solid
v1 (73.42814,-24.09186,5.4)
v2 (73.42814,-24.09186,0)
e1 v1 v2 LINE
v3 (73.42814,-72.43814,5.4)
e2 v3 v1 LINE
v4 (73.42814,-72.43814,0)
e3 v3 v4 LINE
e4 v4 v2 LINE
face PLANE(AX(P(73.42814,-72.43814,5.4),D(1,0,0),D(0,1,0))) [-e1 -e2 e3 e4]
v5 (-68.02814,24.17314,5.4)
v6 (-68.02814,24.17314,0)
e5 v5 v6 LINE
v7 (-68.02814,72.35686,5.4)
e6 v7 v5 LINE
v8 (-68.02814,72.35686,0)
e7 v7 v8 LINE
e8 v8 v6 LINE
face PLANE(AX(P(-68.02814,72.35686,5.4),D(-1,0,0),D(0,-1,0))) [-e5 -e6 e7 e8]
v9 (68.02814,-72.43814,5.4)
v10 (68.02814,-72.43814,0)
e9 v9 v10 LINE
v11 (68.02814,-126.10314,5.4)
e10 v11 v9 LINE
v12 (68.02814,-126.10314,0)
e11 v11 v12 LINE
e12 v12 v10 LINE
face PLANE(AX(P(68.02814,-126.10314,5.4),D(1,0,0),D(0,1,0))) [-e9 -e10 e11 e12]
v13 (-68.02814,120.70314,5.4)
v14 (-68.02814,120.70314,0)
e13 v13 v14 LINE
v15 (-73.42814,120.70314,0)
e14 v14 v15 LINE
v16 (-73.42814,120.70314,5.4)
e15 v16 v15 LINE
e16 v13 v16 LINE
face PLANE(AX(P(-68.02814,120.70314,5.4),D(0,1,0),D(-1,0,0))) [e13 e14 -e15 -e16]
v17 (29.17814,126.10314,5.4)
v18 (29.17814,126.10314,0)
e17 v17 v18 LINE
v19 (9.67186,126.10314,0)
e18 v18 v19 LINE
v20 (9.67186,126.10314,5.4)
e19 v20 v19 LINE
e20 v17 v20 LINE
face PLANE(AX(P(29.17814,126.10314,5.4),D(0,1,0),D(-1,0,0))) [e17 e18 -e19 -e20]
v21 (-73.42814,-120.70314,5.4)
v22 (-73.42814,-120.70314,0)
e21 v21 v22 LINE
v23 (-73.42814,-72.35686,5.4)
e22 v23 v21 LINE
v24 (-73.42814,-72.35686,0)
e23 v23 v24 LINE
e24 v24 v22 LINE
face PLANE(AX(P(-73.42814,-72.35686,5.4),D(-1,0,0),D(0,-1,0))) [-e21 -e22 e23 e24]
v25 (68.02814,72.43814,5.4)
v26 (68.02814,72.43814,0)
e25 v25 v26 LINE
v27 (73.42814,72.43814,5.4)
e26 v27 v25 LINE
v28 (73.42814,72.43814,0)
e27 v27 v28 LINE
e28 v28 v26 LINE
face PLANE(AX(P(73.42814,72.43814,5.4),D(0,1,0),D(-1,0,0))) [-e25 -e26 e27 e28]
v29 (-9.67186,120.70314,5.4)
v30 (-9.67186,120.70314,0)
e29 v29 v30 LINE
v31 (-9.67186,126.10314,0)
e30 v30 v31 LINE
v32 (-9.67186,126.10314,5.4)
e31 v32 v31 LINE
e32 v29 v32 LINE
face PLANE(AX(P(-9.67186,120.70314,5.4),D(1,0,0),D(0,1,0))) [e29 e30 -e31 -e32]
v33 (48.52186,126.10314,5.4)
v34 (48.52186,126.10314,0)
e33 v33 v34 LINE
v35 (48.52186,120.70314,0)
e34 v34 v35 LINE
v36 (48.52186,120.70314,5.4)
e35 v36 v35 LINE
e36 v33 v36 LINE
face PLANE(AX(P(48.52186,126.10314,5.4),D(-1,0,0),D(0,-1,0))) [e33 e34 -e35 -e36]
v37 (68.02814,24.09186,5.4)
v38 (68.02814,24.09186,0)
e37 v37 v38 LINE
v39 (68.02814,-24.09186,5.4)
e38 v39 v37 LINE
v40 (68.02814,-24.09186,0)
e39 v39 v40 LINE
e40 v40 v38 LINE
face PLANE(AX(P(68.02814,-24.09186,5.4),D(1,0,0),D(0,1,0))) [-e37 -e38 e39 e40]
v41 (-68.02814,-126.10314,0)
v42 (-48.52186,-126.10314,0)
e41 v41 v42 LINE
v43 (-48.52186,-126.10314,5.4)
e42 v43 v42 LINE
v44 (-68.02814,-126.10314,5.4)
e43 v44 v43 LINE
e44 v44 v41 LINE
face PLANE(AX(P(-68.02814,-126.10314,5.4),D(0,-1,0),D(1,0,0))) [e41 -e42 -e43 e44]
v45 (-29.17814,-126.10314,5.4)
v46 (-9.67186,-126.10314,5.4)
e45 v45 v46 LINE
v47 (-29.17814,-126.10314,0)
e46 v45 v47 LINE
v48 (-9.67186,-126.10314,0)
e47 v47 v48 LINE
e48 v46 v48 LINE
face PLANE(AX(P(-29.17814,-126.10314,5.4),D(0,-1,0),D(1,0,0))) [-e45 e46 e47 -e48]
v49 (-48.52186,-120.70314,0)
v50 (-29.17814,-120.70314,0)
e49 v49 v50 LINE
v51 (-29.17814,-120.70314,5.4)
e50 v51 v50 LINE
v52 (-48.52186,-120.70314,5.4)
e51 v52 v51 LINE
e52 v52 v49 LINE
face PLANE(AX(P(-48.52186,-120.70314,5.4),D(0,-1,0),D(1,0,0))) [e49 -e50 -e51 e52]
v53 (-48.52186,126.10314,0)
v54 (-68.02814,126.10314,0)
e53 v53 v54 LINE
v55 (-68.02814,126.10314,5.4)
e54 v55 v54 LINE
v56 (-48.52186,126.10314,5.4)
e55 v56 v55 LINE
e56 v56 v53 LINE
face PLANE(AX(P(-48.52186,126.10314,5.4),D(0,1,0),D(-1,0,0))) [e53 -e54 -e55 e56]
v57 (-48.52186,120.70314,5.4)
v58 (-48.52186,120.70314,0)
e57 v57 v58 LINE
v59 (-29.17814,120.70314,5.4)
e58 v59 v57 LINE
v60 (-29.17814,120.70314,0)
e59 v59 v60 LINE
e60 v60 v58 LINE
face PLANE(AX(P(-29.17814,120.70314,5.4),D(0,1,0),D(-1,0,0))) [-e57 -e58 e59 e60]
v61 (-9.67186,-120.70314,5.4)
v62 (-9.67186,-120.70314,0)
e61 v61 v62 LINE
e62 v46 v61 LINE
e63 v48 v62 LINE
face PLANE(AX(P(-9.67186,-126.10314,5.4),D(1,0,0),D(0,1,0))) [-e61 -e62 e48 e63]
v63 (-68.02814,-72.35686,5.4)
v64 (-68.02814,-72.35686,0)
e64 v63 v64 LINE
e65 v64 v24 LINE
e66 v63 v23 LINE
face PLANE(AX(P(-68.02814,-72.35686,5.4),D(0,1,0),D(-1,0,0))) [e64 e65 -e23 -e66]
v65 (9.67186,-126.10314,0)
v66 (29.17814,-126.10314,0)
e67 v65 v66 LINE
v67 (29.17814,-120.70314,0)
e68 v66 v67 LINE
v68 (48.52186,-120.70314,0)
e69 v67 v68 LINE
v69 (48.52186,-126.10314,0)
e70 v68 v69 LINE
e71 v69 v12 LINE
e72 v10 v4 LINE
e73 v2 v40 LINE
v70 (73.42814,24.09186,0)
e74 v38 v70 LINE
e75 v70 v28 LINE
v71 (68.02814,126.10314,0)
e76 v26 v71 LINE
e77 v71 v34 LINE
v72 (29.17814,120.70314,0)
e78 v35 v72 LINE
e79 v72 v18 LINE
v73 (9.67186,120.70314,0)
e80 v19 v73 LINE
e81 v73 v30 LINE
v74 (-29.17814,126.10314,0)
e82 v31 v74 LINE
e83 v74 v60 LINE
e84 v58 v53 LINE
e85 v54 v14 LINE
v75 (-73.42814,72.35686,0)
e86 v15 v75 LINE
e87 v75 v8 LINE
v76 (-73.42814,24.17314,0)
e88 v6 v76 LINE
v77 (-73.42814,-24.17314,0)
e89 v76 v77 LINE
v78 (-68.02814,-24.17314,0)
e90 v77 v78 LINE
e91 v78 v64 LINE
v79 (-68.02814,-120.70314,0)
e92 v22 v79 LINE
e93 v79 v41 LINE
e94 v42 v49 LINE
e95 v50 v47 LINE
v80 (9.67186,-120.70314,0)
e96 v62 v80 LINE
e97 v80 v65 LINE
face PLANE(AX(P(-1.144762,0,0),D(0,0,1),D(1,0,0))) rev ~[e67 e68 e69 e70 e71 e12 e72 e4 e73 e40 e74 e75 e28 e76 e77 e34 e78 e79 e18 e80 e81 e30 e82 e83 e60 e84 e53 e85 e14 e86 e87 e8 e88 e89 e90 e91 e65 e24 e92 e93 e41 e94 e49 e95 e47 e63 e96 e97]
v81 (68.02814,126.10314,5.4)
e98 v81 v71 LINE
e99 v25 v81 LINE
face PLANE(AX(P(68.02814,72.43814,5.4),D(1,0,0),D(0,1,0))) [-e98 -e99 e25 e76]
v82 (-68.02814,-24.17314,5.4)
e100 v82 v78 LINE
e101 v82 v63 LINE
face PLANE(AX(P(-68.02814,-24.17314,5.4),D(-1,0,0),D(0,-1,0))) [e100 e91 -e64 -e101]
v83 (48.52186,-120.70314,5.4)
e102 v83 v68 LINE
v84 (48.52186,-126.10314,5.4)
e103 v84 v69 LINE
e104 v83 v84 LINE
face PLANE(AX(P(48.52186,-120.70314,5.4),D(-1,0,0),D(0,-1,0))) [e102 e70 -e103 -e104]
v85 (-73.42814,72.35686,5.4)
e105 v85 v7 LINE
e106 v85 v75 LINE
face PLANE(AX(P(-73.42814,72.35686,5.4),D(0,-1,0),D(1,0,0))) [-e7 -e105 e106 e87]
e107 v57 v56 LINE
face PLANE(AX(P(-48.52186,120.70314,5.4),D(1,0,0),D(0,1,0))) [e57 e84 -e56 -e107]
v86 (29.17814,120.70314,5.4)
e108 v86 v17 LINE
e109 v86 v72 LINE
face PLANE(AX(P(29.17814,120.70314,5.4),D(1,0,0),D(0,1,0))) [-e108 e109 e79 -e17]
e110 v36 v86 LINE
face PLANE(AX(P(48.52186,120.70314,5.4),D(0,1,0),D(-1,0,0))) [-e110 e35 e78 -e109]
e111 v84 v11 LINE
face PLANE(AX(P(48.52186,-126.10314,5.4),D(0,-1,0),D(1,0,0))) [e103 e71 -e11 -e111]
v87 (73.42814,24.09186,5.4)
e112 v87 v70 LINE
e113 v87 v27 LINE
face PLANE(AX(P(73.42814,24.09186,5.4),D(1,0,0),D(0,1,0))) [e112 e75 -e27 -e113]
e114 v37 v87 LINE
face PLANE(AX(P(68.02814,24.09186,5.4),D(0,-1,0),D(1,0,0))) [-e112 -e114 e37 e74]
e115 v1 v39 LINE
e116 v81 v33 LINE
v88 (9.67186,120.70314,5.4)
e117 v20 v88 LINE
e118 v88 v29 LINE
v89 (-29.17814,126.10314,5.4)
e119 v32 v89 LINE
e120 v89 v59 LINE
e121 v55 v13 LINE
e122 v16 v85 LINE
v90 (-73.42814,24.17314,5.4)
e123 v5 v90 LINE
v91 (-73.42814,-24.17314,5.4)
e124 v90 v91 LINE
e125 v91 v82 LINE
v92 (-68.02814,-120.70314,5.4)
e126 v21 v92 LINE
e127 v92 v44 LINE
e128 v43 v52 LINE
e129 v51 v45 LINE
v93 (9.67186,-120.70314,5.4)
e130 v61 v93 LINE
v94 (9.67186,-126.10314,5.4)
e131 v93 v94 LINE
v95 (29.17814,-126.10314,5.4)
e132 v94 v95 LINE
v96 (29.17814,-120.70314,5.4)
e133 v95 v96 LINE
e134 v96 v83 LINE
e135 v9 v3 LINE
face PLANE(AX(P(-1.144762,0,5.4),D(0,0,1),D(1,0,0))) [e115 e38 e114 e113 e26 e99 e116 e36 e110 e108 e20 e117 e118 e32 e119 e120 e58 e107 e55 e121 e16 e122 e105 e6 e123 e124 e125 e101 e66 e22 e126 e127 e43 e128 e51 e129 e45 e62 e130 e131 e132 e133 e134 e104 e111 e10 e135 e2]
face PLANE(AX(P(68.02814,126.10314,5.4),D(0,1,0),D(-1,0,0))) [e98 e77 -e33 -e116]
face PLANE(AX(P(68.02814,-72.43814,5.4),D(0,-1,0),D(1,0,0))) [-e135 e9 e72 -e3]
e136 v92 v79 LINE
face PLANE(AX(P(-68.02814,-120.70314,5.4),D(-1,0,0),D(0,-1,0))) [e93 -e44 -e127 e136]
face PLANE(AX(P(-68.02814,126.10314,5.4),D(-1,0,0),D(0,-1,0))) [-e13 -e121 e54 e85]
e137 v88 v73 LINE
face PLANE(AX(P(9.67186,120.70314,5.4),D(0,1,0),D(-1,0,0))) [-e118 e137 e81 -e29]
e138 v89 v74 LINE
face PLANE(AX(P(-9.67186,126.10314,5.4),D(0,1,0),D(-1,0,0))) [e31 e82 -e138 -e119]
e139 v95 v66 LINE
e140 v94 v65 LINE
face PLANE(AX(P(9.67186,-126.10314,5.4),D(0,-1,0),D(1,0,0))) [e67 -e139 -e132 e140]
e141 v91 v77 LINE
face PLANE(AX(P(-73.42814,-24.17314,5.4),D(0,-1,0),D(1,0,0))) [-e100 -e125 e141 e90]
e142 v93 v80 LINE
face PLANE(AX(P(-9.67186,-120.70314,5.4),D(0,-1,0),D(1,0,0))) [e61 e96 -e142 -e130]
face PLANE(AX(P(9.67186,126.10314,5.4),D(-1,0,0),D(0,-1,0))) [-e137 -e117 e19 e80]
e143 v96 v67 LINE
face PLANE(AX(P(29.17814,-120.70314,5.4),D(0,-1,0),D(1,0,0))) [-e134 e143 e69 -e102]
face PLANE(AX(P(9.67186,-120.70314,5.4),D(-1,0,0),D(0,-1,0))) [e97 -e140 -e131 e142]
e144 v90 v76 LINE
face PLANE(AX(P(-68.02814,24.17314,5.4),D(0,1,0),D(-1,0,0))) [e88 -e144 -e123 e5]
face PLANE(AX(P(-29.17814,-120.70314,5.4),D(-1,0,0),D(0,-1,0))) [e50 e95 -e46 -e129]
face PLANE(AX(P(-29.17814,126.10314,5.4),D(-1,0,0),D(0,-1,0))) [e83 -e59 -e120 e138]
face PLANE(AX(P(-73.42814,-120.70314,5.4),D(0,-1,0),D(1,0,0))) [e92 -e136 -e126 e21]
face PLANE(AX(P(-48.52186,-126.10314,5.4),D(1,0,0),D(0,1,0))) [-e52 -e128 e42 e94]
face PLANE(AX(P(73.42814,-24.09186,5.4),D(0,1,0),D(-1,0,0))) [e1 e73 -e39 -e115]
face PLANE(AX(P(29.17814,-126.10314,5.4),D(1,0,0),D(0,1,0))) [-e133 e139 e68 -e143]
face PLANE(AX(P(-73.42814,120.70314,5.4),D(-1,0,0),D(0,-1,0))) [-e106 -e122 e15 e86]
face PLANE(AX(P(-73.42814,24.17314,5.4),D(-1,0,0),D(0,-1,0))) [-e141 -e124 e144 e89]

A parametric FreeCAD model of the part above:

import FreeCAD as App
import Part
import Sketcher

V = App.Vector
Q = App.Units.Quantity


def add_polygon(sketch, points):
    """Adds a closed chain of lines whose ends are joined by coincident constraints."""
    first, n = sketch.GeometryCount, len(points)
    for a, b in zip(points, points[1:] + points[:1]):
        sketch.addGeometry(Part.LineSegment(App.Vector(*a, 0), App.Vector(*b, 0)), False)
    for i in range(n):
        sketch.addConstraint(Sketcher.Constraint("Coincident", first + i, 2, first + (i + 1) % n, 1))

doc = App.newDocument("Part")
body = doc.addObject("PartDesign::Body", "Body")

sketch1 = body.newObject("Sketcher::SketchObject", "Sketch")
sketch1.AttachmentSupport = (doc.getObject("XY_Plane"), [""])
sketch1.MapMode = "FlatFace"
add_polygon(sketch1, [(-67.9875, -24.1325), (-67.9875, -72.3975), (-73.3875, -72.3975), (-73.3875, -120.6625), (-67.9875, -120.6625), (-67.9875, -126.0625), (-48.5625, -126.0625), (-48.5625, -120.6625), (-29.1375, -120.6625), (-29.1375, -126.0625), (-9.7125, -126.0625), (-9.7125, -120.6625), (9.7125, -120.6625), (9.7125, -126.0625), (29.1375, -126.0625), (29.1375, -120.6625), (48.5625, -120.6625), (48.5625, -126.0625), (67.9875, -126.0625), (67.9875, -72.3975), (73.3875, -72.3975), (73.3875, -24.1325), (67.9875, -24.1325), (67.9875, 24.1325), (73.3875, 24.1325), (73.3875, 72.3975), (67.9875, 72.3975), (67.9875, 126.0625), (48.5625, 126.0625), (48.5625, 120.6625), (29.1375, 120.6625), (29.1375, 126.0625), (9.7125, 126.0625), (9.7125, 120.6625), (-9.7125, 120.6625), (-9.7125, 126.0625), (-29.1375, 126.0625), (-29.1375, 120.6625), (-48.5625, 120.6625), (-48.5625, 126.0625), (-67.9875, 126.0625), (-67.9875, 120.6625), (-73.3875, 120.6625), (-73.3875, 72.3975), (-67.9875, 72.3975), (-67.9875, 24.1325), (-73.3875, 24.1325), (-73.3875, -24.1325)])
sketch1.addConstraint([
    Sketcher.Constraint("Vertical", 0),
    Sketcher.Constraint("Horizontal", 1),
    Sketcher.Constraint("Vertical", 2),
    Sketcher.Constraint("Horizontal", 3),
    Sketcher.Constraint("Vertical", 4),
    Sketcher.Constraint("Horizontal", 5),
    Sketcher.Constraint("Vertical", 6),
    Sketcher.Constraint("Horizontal", 7),
    Sketcher.Constraint("Vertical", 8),
    Sketcher.Constraint("Horizontal", 9),
    Sketcher.Constraint("Vertical", 10),
    Sketcher.Constraint("Horizontal", 11),
    Sketcher.Constraint("Vertical", 12),
    Sketcher.Constraint("Horizontal", 13),
    Sketcher.Constraint("Vertical", 14),
    Sketcher.Constraint("Horizontal", 15),
    Sketcher.Constraint("Vertical", 16),
    Sketcher.Constraint("Horizontal", 17),
    Sketcher.Constraint("Vertical", 18),
    Sketcher.Constraint("Horizontal", 19),
    Sketcher.Constraint("Vertical", 20),
    Sketcher.Constraint("Horizontal", 21),
    Sketcher.Constraint("Vertical", 22),
    Sketcher.Constraint("Horizontal", 23),
    Sketcher.Constraint("Vertical", 24),
    Sketcher.Constraint("Horizontal", 25),
    Sketcher.Constraint("Vertical", 26),
    Sketcher.Constraint("Horizontal", 27),
    Sketcher.Constraint("Vertical", 28),
    Sketcher.Constraint("Horizontal", 29),
    Sketcher.Constraint("Vertical", 30),
    Sketcher.Constraint("Horizontal", 31),
    Sketcher.Constraint("Vertical", 32),
    Sketcher.Constraint("Horizontal", 33),
    Sketcher.Constraint("Vertical", 34),
    Sketcher.Constraint("Horizontal", 35),
    Sketcher.Constraint("Vertical", 36),
    Sketcher.Constraint("Horizontal", 37),
    Sketcher.Constraint("Vertical", 38),
    Sketcher.Constraint("Horizontal", 39),
    Sketcher.Constraint("Vertical", 40),
    Sketcher.Constraint("Horizontal", 41),
    Sketcher.Constraint("Vertical", 42),
    Sketcher.Constraint("Horizontal", 43),
    Sketcher.Constraint("Vertical", 44),
    Sketcher.Constraint("Horizontal", 45),
    Sketcher.Constraint("Vertical", 46),
    Sketcher.Constraint("Horizontal", 47),
    Sketcher.Constraint("Symmetric", 1, 2, 24, 2, -1, 1),
    Sketcher.Constraint("Symmetric", 4, 2, 26, 2, -1, 1),
    Sketcher.Constraint("Symmetric", 6, 2, 28, 2, -1, 1),
    Sketcher.Constraint("Symmetric", 8, 2, 30, 2, -1, 1),
    Sketcher.Constraint("Symmetric", 10, 2, 32, 2, -1, 1),
    Sketcher.Constraint("Symmetric", 12, 2, 34, 2, -1, 1),
    Sketcher.Constraint("Symmetric", 14, 2, 36, 2, -1, 1),
    Sketcher.Constraint("Symmetric", 16, 2, 38, 2, -1, 1),
    Sketcher.Constraint("Symmetric", 19, 2, 42, 2, -1, 1),
    Sketcher.Constraint("Symmetric", 21, 2, 44, 2, -1, 1),
    Sketcher.Constraint("Symmetric", 23, 2, 46, 2, -1, 1),
    Sketcher.Constraint("Symmetric", 9, 2, 12, 2, -2),
    Sketcher.Constraint("Symmetric", 7, 2, 14, 2, -2),
    Sketcher.Constraint("Symmetric", 5, 2, 16, 2, -2),
    Sketcher.Constraint("Symmetric", 0, 2, 18, 2, -2),
    Sketcher.Constraint("Symmetric", 20, 2, 46, 2, -2),
    Sketcher.Constraint("Symmetric", 3, 2, 40, 2, -1),
    Sketcher.Constraint("Horizontal", 3, 2, 6, 2),
    Sketcher.Constraint("Horizontal", 5, 2, 8, 2),
    Sketcher.Constraint("Horizontal", 7, 2, 10, 2),
    Sketcher.Constraint("Vertical", 0, 2, 3, 2),
    Sketcher.Constraint("Vertical", 18, 2, 21, 2),
    Sketcher.Constraint("Equal", 5, 7),
    Sketcher.Constraint("Equal", 7, 9),
    Sketcher.Constraint("Equal", 9, 11),
    Sketcher.Constraint("Equal", 0, 2),
    Sketcher.Constraint("Equal", 47, 4),
    Sketcher.Constraint("Equal", 20, 22),
    Sketcher.Constraint("DistanceX", 1, 2, 1, 1, Q("5.4 mm")),
    Sketcher.Constraint("DistanceX", 5, 1, 5, 2, Q("19.425 mm")),
    Sketcher.Constraint("DistanceY", 0, 2, 0, 1, Q("48.265 mm")),
])
pad1 = body.newObject("PartDesign::Pad", "Pad")
pad1.Profile = sketch1
pad1.Length = 5.4

sketch2 = body.newObject("Sketcher::SketchObject", "Sketch001")
sketch2.AttachmentSupport = (doc.getObject("XY_Plane"), [""])
sketch2.MapMode = "FlatFace"
sketch2.AttachmentOffset = App.Placement(V(0, 0, 5.4), App.Rotation())
add_polygon(sketch2, [(-48.52186, -120.70314), (-29.17814, -120.70314), (-29.17814, -126.10314), (-9.67186, -126.10314), (-9.67186, -120.70314), (9.67186, -120.70314), (9.67186, -126.10314), (29.17814, -126.10314), (29.17814, -120.70314), (48.52186, -120.70314), (48.52186, -126.10314), (68.02814, -126.10314), (68.02814, -72.43814), (73.42814, -72.43814), (73.42814, -24.09186), (68.02814, -24.09186), (68.02814, 24.09186), (73.42814, 24.09186), (73.42814, 72.43814), (68.02814, 72.43814), (68.02814, 126.10314), (48.52186, 126.10314), (48.52186, 120.70314), (29.17814, 120.70314), (29.17814, 126.10314), (9.67186, 126.10314), (9.67186, 120.70314), (-9.67186, 120.70314), (-9.67186, 126.10314), (-29.17814, 126.10314), (-29.17814, 120.70314), (-48.52186, 120.70314), (-48.52186, 126.10314), (-68.02814, 126.10314), (-68.02814, 120.70314), (-73.42814, 120.70314), (-73.42814, 72.35686), (-68.02814, 72.35686), (-68.02814, 24.17314), (-73.42814, 24.17314), (-73.42814, -24.17314), (-68.02814, -24.17314), (-68.02814, -72.35686), (-73.42814, -72.35686), (-73.42814, -120.70314), (-68.02814, -120.70314), (-68.02814, -126.10314), (-48.52186, -126.10314)])
sketch2.addConstraint([
    Sketcher.Constraint("Horizontal", 0),
    Sketcher.Constraint("Vertical", 1),
    Sketcher.Constraint("Horizontal", 2),
    Sketcher.Constraint("Vertical", 3),
    Sketcher.Constraint("Horizontal", 4),
    Sketcher.Constraint("Vertical", 5),
    Sketcher.Constraint("Horizontal", 6),
    Sketcher.Constraint("Vertical", 7),
    Sketcher.Constraint("Horizontal", 8),
    Sketcher.Constraint("Vertical", 9),
    Sketcher.Constraint("Horizontal", 10),
    Sketcher.Constraint("Vertical", 11),
    Sketcher.Constraint("Horizontal", 12),
    Sketcher.Constraint("Vertical", 13),
    Sketcher.Constraint("Horizontal", 14),
    Sketcher.Constraint("Vertical", 15),
    Sketcher.Constraint("Horizontal", 16),
    Sketcher.Constraint("Vertical", 17),
    Sketcher.Constraint("Horizontal", 18),
    Sketcher.Constraint("Vertical", 19),
    Sketcher.Constraint("Horizontal", 20),
    Sketcher.Constraint("Vertical", 21),
    Sketcher.Constraint("Horizontal", 22),
    Sketcher.Constraint("Vertical", 23),
    Sketcher.Constraint("Horizontal", 24),
    Sketcher.Constraint("Vertical", 25),
    Sketcher.Constraint("Horizontal", 26),
    Sketcher.Constraint("Vertical", 27),
    Sketcher.Constraint("Horizontal", 28),
    Sketcher.Constraint("Vertical", 29),
    Sketcher.Constraint("Horizontal", 30),
    Sketcher.Constraint("Vertical", 31),
    Sketcher.Constraint("Horizontal", 32),
    Sketcher.Constraint("Vertical", 33),
    Sketcher.Constraint("Horizontal", 34),
    Sketcher.Constraint("Vertical", 35),
    Sketcher.Constraint("Horizontal", 36),
    Sketcher.Constraint("Vertical", 37),
    Sketcher.Constraint("Horizontal", 38),
    Sketcher.Constraint("Vertical", 39),
    Sketcher.Constraint("Horizontal", 40),
    Sketcher.Constraint("Vertical", 41),
    Sketcher.Constraint("Horizontal", 42),
    Sketcher.Constraint("Vertical", 43),
    Sketcher.Constraint("Horizontal", 44),
    Sketcher.Constraint("Vertical", 45),
    Sketcher.Constraint("Horizontal", 46),
    Sketcher.Constraint("Vertical", 47),
    Sketcher.Constraint("Symmetric", 0, 2, 22, 2, -1, 1),
    Sketcher.Constraint("Symmetric", 2, 2, 24, 2, -1, 1),
    Sketcher.Constraint("Symmetric", 4, 2, 26, 2, -1, 1),
    Sketcher.Constraint("Symmetric", 6, 2, 28, 2, -1, 1),
    Sketcher.Constraint("Symmetric", 8, 2, 30, 2, -1, 1),
    Sketcher.Constraint("Symmetric", 10, 2, 32, 2, -1, 1),
    Sketcher.Constraint("Symmetric", 19, 2, 45, 2, -1, 1),
    Sketcher.Constraint("Symmetric", 2, 2, 5, 2, -2),
    Sketcher.Constraint("Symmetric", 0, 2, 7, 2, -2),
    Sketcher.Constraint("Symmetric", 20, 2, 31, 2, -2),
    Sketcher.Constraint("Symmetric", 13, 2, 16, 2, -1),
    Sketcher.Constraint("Symmetric", 11, 2, 18, 2, -1),
    Sketcher.Constraint("Symmetric", 37, 2, 40, 2, -1),
    Sketcher.Constraint("Symmetric", 35, 2, 42, 2, -1),
    Sketcher.Constraint("Horizontal", 0, 2, 3, 2),
    Sketcher.Constraint("Horizontal", 6, 2, 9, 2),
    Sketcher.Constraint("Horizontal", 30, 2, 33, 2),
    Sketcher.Constraint("Horizontal", 8, 2, 43, 2),
    Sketcher.Constraint("Vertical", 11, 2, 14, 2),
    Sketcher.Constraint("Vertical", 33, 2, 36, 2),
    Sketcher.Constraint("Vertical", 35, 2, 38, 2),
    Sketcher.Constraint("Vertical", 31, 2, 46, 2),
    Sketcher.Constraint("Equal", 0, 4),
    Sketcher.Constraint("Equal", 6, 10),
    Sketcher.Constraint("Equal", 18, 34),
    Sketcher.Constraint("Equal", 44, 1),
    Sketcher.Constraint("Equal", 17, 35),
    Sketcher.Constraint("Equal", 15, 37),
    Sketcher.Constraint("Equal", 35, 39),
    Sketcher.Constraint("DistanceX", 12, 1, 12, 2, Q("5.4 mm")),
    Sketcher.Constraint("DistanceY", 11, 1, 11, 2, Q("53.665 mm")),
    Sketcher.Constraint("DistanceX", 0, 2, 4, 2, Q("38.85 mm")),
    Sketcher.Constraint("DistanceX", 0, 1, 0, 2, Q("19.34372 mm")),
    Sketcher.Constraint("DistanceY", 13, 1, 13, 2, Q("48.34628 mm")),
])
pad2 = body.newObject("PartDesign::Pad", "Pad001")
pad2.Profile = sketch2
pad2.Length = 5.4
pad2.Reversed = True

doc.recompute()
